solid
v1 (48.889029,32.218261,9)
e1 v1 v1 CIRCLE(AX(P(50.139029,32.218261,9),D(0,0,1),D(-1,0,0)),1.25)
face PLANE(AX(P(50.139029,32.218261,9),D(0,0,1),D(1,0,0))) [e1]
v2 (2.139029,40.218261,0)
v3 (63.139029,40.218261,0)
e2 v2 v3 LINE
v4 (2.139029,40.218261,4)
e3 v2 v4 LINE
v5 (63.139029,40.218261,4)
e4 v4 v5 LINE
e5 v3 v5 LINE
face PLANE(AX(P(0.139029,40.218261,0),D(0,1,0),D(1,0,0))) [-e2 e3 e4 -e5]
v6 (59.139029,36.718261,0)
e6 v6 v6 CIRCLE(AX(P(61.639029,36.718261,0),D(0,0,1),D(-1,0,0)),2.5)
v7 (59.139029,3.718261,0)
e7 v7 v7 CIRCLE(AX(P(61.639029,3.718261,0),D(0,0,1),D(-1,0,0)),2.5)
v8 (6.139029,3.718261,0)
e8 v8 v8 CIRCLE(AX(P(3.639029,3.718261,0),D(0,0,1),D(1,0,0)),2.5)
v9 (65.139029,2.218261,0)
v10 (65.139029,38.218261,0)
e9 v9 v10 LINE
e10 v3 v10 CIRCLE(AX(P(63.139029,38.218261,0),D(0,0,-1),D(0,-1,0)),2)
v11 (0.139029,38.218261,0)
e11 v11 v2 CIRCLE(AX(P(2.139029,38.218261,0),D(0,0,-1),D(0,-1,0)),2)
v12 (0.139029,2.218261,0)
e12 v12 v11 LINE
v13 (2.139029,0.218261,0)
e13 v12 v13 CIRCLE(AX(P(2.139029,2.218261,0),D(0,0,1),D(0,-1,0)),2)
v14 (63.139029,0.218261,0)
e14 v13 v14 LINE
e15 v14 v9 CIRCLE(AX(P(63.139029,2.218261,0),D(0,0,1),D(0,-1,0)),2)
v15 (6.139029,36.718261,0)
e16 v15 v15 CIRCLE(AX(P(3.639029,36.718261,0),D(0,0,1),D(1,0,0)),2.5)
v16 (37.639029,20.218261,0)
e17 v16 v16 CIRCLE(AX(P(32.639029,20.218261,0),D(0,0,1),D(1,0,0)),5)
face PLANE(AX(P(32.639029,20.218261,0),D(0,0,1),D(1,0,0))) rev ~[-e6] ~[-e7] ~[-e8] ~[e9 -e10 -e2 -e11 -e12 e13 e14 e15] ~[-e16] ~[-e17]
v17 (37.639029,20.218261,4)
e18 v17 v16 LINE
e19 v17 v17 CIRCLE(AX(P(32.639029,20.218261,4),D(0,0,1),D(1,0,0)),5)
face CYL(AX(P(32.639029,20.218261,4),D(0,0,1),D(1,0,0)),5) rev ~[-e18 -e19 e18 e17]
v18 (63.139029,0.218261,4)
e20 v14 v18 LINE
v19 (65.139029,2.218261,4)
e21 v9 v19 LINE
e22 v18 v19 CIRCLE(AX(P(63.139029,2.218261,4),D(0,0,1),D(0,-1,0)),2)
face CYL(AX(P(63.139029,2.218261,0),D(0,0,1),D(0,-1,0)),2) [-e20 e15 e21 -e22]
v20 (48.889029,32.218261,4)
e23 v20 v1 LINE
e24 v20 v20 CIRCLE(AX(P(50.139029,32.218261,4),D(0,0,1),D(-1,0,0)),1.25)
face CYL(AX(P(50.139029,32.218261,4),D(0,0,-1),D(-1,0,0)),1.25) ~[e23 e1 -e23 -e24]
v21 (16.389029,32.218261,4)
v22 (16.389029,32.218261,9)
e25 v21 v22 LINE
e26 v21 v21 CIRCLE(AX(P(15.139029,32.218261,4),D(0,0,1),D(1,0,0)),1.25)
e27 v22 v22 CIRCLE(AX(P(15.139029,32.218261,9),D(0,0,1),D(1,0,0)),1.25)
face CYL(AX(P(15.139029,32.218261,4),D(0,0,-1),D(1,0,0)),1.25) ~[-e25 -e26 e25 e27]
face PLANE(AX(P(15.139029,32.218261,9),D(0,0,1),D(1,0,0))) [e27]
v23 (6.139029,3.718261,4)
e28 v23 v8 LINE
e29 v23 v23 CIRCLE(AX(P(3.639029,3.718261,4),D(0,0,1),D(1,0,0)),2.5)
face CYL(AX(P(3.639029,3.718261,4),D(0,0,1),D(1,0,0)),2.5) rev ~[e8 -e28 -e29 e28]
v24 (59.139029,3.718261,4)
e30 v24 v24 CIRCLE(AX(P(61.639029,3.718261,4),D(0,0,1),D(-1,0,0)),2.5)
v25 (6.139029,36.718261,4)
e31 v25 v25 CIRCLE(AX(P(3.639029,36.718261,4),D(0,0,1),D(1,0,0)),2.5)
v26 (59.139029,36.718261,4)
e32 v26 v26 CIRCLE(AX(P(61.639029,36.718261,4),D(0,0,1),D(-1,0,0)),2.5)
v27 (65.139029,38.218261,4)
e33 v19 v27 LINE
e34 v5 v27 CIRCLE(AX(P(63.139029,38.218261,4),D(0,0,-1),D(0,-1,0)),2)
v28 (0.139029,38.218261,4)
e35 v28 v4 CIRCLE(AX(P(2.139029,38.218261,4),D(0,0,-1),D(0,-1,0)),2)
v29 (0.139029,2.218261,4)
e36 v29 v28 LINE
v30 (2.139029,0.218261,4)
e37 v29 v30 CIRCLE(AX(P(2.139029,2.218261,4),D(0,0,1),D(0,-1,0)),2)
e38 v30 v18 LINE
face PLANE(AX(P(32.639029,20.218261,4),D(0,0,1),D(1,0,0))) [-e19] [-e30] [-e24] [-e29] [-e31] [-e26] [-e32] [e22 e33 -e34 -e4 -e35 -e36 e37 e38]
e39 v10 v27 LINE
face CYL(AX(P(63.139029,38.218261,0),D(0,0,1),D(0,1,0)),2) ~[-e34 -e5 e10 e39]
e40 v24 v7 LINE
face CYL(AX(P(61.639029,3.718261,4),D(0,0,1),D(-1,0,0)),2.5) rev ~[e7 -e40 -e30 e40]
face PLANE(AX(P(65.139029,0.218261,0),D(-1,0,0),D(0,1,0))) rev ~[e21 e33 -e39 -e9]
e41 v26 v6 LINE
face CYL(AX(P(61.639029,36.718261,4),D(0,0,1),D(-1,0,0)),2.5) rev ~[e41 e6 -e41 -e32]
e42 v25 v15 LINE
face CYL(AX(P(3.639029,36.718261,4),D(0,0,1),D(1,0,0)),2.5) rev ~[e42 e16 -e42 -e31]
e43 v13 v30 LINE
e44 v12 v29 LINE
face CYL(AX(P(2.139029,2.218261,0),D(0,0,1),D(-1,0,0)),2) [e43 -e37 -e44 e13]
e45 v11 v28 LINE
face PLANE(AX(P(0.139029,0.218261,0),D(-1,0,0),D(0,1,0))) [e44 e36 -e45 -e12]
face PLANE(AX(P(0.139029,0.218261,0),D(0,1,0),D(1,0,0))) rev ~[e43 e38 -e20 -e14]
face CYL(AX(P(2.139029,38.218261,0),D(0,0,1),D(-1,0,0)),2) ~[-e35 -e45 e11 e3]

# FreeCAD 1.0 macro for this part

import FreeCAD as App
import Part
import Sketcher
Q = App.Units.Quantity


def edges_at(feature, points):
    """Names of the edges that pass closest to the given points."""
    edges = feature.Shape.Edges
    near = lambda p: min(range(len(edges)), key=lambda i: edges[i].distToShape(Part.Vertex(*p))[0])
    return sorted({f"Edge{near(p) + 1}" for p in points})


def add_polygon(sketch, points):
    """Adds a closed chain of lines whose ends are joined by coincident constraints."""
    first, n = sketch.GeometryCount, len(points)
    for a, b in zip(points, points[1:] + points[:1]):
        sketch.addGeometry(Part.LineSegment(App.Vector(*a, 0), App.Vector(*b, 0)), False)
    for i in range(n):
        sketch.addConstraint(Sketcher.Constraint("Coincident", first + i, 2, first + (i + 1) % n, 1))

doc = App.newDocument("Part")
body = doc.addObject("PartDesign::Body", "Body")

# Sketch on XY plane
sketch1 = body.newObject("Sketcher::SketchObject", "Sketch")
sketch1.AttachmentSupport = (doc.getObject("XY_Plane"), [""])
sketch1.MapMode = "FlatFace"
add_polygon(sketch1, [(0, 40), (0, 0), (65, 0), (65, 40)])  # lines 0-3
sketch1.addConstraint(Sketcher.Constraint("Vertical", 0))
sketch1.addConstraint(Sketcher.Constraint("Horizontal", 1))
sketch1.addConstraint(Sketcher.Constraint("Vertical", 2))
sketch1.addConstraint(Sketcher.Constraint("Horizontal", 3))
sketch1.addConstraint(Sketcher.Constraint("DistanceX", 1, 1, 1, 2, Q("65 mm")))
sketch1.addConstraint(Sketcher.Constraint("DistanceY", 0, 2, 0, 1, Q("40 mm")))
sketch1.addConstraint(Sketcher.Constraint("DistanceX", -1, 1, 0, 2, Q("0.139029 mm")))
sketch1.addConstraint(Sketcher.Constraint("DistanceY", -1, 1, 0, 2, Q("0.218261 mm")))
pad1 = body.newObject("PartDesign::Pad", "Pad")
pad1.Profile = sketch1
pad1.Length = 4

# Sketch on XY plane
sketch2 = body.newObject("Sketcher::SketchObject", "Sketch001")
sketch2.AttachmentSupport = (doc.getObject("XY_Plane"), [""])
sketch2.MapMode = "FlatFace"
sketch2.AttachmentOffset = App.Placement(App.Vector(0, 0, 4), App.Rotation())
sketch2.addGeometry(Part.Circle(App.Vector(33, 20, 0), App.Vector(0, 0, 1), 5), False)
sketch2.addConstraint(Sketcher.Constraint("Diameter", 0, Q("10 mm")))
sketch2.addConstraint(Sketcher.Constraint("DistanceX", -1, 1, 0, 3, Q("32.639029 mm")))
sketch2.addConstraint(Sketcher.Constraint("DistanceY", -1, 1, 0, 3, Q("20.218261 mm")))
pocket1 = body.newObject("PartDesign::Pocket", "Pocket")
pocket1.Profile = sketch2
pocket1.Length = 25

# Sketch on XY plane
sketch3 = body.newObject("Sketcher::SketchObject", "Sketch002")
sketch3.AttachmentSupport = (doc.getObject("XY_Plane"), [""])
sketch3.MapMode = "FlatFace"
sketch3.AttachmentOffset = App.Placement(App.Vector(0, 0, 4), App.Rotation())
sketch3.addGeometry(Part.Circle(App.Vector(50.1, 32.2, 0), App.Vector(0, 0, 1), 1.2), False)
sketch3.addGeometry(Part.Circle(App.Vector(15.1, 32.2, 0), App.Vector(0, 0, 1), 1.2), False)
sketch3.addConstraint(Sketcher.Constraint("Equal", 0, 1))
sketch3.addConstraint(Sketcher.Constraint("Horizontal", 0, 3, 1, 3))
sketch3.addConstraint(Sketcher.Constraint("Diameter", 0, Q("2.5 mm")))
sketch3.addConstraint(Sketcher.Constraint("DistanceX", 1, 3, 0, 3, Q("35 mm")))
sketch3.addConstraint(Sketcher.Constraint("DistanceX", -1, 1, 0, 3, Q("50.139029 mm")))
sketch3.addConstraint(Sketcher.Constraint("DistanceY", -1, 1, 0, 3, Q("32.218261 mm")))
pad2 = body.newObject("PartDesign::Pad", "Pad001")
pad2.Profile = sketch3
pad2.Length = 5
doc.recompute()

fillet = body.newObject("PartDesign::Fillet", "Fillet")
fillet.Base = (pad2, edges_at(pad2, [
    (0.139, 0.218, 2),
    (65.139, 0.218, 2),
    (65.139, 40.218, 2),
    (0.139, 40.218, 2),
]))
fillet.Radius = 2

# Sketch on XY plane
sketch4 = body.newObject("Sketcher::SketchObject", "Sketch003")
sketch4.AttachmentSupport = (doc.getObject("XY_Plane"), [""])
sketch4.MapMode = "FlatFace"
sketch4.AttachmentOffset = App.Placement(App.Vector(0, 0, 4), App.Rotation())
sketch4.addGeometry(Part.Circle(App.Vector(3.6, 36.7, 0), App.Vector(0, 0, 1), 2.5), False)
sketch4.addGeometry(Part.Circle(App.Vector(3.6, 3.7, 0), App.Vector(0, 0, 1), 2.5), False)
sketch4.addGeometry(Part.Circle(App.Vector(61.6, 3.7, 0), App.Vector(0, 0, 1), 2.5), False)
sketch4.addGeometry(Part.Circle(App.Vector(61.6, 36.7, 0), App.Vector(0, 0, 1), 2.5), False)
sketch4.addConstraint(Sketcher.Constraint("Equal", 0, 1))
sketch4.addConstraint(Sketcher.Constraint("Equal", 1, 2))
sketch4.addConstraint(Sketcher.Constraint("Equal", 2, 3))
sketch4.addConstraint(Sketcher.Constraint("Horizontal", 1, 3, 2, 3))
sketch4.addConstraint(Sketcher.Constraint("Horizontal", 0, 3, 3, 3))
sketch4.addConstraint(Sketcher.Constraint("Vertical", 0, 3, 1, 3))
sketch4.addConstraint(Sketcher.Constraint("Vertical", 2, 3, 3, 3))
sketch4.addConstraint(Sketcher.Constraint("Diameter", 0, Q("5 mm")))
sketch4.addConstraint(Sketcher.Constraint("DistanceY", 1, 3, 0, 3, Q("33 mm")))
sketch4.addConstraint(Sketcher.Constraint("DistanceX", 1, 3, 2, 3, Q("58 mm")))
sketch4.addConstraint(Sketcher.Constraint("DistanceX", -1, 1, 0, 3, Q("3.639029 mm")))
sketch4.addConstraint(Sketcher.Constraint("DistanceY", -1, 1, 0, 3, Q("36.718261 mm")))
pocket2 = body.newObject("PartDesign::Pocket", "Pocket001")
pocket2.Profile = sketch4
pocket2.Length = 25

doc.recompute()
